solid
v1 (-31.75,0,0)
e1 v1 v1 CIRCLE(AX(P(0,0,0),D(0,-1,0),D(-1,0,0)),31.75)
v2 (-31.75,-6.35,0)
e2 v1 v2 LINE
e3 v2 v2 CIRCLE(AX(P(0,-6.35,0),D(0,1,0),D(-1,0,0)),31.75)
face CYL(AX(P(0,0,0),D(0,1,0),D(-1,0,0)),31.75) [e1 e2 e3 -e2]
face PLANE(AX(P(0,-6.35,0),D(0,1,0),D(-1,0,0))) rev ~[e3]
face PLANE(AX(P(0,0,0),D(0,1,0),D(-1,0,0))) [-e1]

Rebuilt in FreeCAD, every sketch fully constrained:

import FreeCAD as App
import Part
import Sketcher

V = App.Vector
Q = App.Units.Quantity

doc = App.newDocument("Part")
body = doc.addObject("PartDesign::Body", "Body")

sketch1 = body.newObject("Sketcher::SketchObject", "Sketch")
sketch1.AttachmentSupport = (doc.getObject("XZ_Plane"), [""])
sketch1.MapMode = "FlatFace"
sketch1.addGeometry(Part.Circle(V(0, 0, 0), V(0, 0, 1), 31.75), False)
sketch1.addConstraint([
    Sketcher.Constraint("Coincident", 0, 3, -1, 1),
    Sketcher.Constraint("Diameter", 0, Q("2.5 in")),
])
pad1 = body.newObject("PartDesign::Pad", "Pad")
pad1.Profile = sketch1
pad1.Length = Q("0.25 in")

doc.recompute()
